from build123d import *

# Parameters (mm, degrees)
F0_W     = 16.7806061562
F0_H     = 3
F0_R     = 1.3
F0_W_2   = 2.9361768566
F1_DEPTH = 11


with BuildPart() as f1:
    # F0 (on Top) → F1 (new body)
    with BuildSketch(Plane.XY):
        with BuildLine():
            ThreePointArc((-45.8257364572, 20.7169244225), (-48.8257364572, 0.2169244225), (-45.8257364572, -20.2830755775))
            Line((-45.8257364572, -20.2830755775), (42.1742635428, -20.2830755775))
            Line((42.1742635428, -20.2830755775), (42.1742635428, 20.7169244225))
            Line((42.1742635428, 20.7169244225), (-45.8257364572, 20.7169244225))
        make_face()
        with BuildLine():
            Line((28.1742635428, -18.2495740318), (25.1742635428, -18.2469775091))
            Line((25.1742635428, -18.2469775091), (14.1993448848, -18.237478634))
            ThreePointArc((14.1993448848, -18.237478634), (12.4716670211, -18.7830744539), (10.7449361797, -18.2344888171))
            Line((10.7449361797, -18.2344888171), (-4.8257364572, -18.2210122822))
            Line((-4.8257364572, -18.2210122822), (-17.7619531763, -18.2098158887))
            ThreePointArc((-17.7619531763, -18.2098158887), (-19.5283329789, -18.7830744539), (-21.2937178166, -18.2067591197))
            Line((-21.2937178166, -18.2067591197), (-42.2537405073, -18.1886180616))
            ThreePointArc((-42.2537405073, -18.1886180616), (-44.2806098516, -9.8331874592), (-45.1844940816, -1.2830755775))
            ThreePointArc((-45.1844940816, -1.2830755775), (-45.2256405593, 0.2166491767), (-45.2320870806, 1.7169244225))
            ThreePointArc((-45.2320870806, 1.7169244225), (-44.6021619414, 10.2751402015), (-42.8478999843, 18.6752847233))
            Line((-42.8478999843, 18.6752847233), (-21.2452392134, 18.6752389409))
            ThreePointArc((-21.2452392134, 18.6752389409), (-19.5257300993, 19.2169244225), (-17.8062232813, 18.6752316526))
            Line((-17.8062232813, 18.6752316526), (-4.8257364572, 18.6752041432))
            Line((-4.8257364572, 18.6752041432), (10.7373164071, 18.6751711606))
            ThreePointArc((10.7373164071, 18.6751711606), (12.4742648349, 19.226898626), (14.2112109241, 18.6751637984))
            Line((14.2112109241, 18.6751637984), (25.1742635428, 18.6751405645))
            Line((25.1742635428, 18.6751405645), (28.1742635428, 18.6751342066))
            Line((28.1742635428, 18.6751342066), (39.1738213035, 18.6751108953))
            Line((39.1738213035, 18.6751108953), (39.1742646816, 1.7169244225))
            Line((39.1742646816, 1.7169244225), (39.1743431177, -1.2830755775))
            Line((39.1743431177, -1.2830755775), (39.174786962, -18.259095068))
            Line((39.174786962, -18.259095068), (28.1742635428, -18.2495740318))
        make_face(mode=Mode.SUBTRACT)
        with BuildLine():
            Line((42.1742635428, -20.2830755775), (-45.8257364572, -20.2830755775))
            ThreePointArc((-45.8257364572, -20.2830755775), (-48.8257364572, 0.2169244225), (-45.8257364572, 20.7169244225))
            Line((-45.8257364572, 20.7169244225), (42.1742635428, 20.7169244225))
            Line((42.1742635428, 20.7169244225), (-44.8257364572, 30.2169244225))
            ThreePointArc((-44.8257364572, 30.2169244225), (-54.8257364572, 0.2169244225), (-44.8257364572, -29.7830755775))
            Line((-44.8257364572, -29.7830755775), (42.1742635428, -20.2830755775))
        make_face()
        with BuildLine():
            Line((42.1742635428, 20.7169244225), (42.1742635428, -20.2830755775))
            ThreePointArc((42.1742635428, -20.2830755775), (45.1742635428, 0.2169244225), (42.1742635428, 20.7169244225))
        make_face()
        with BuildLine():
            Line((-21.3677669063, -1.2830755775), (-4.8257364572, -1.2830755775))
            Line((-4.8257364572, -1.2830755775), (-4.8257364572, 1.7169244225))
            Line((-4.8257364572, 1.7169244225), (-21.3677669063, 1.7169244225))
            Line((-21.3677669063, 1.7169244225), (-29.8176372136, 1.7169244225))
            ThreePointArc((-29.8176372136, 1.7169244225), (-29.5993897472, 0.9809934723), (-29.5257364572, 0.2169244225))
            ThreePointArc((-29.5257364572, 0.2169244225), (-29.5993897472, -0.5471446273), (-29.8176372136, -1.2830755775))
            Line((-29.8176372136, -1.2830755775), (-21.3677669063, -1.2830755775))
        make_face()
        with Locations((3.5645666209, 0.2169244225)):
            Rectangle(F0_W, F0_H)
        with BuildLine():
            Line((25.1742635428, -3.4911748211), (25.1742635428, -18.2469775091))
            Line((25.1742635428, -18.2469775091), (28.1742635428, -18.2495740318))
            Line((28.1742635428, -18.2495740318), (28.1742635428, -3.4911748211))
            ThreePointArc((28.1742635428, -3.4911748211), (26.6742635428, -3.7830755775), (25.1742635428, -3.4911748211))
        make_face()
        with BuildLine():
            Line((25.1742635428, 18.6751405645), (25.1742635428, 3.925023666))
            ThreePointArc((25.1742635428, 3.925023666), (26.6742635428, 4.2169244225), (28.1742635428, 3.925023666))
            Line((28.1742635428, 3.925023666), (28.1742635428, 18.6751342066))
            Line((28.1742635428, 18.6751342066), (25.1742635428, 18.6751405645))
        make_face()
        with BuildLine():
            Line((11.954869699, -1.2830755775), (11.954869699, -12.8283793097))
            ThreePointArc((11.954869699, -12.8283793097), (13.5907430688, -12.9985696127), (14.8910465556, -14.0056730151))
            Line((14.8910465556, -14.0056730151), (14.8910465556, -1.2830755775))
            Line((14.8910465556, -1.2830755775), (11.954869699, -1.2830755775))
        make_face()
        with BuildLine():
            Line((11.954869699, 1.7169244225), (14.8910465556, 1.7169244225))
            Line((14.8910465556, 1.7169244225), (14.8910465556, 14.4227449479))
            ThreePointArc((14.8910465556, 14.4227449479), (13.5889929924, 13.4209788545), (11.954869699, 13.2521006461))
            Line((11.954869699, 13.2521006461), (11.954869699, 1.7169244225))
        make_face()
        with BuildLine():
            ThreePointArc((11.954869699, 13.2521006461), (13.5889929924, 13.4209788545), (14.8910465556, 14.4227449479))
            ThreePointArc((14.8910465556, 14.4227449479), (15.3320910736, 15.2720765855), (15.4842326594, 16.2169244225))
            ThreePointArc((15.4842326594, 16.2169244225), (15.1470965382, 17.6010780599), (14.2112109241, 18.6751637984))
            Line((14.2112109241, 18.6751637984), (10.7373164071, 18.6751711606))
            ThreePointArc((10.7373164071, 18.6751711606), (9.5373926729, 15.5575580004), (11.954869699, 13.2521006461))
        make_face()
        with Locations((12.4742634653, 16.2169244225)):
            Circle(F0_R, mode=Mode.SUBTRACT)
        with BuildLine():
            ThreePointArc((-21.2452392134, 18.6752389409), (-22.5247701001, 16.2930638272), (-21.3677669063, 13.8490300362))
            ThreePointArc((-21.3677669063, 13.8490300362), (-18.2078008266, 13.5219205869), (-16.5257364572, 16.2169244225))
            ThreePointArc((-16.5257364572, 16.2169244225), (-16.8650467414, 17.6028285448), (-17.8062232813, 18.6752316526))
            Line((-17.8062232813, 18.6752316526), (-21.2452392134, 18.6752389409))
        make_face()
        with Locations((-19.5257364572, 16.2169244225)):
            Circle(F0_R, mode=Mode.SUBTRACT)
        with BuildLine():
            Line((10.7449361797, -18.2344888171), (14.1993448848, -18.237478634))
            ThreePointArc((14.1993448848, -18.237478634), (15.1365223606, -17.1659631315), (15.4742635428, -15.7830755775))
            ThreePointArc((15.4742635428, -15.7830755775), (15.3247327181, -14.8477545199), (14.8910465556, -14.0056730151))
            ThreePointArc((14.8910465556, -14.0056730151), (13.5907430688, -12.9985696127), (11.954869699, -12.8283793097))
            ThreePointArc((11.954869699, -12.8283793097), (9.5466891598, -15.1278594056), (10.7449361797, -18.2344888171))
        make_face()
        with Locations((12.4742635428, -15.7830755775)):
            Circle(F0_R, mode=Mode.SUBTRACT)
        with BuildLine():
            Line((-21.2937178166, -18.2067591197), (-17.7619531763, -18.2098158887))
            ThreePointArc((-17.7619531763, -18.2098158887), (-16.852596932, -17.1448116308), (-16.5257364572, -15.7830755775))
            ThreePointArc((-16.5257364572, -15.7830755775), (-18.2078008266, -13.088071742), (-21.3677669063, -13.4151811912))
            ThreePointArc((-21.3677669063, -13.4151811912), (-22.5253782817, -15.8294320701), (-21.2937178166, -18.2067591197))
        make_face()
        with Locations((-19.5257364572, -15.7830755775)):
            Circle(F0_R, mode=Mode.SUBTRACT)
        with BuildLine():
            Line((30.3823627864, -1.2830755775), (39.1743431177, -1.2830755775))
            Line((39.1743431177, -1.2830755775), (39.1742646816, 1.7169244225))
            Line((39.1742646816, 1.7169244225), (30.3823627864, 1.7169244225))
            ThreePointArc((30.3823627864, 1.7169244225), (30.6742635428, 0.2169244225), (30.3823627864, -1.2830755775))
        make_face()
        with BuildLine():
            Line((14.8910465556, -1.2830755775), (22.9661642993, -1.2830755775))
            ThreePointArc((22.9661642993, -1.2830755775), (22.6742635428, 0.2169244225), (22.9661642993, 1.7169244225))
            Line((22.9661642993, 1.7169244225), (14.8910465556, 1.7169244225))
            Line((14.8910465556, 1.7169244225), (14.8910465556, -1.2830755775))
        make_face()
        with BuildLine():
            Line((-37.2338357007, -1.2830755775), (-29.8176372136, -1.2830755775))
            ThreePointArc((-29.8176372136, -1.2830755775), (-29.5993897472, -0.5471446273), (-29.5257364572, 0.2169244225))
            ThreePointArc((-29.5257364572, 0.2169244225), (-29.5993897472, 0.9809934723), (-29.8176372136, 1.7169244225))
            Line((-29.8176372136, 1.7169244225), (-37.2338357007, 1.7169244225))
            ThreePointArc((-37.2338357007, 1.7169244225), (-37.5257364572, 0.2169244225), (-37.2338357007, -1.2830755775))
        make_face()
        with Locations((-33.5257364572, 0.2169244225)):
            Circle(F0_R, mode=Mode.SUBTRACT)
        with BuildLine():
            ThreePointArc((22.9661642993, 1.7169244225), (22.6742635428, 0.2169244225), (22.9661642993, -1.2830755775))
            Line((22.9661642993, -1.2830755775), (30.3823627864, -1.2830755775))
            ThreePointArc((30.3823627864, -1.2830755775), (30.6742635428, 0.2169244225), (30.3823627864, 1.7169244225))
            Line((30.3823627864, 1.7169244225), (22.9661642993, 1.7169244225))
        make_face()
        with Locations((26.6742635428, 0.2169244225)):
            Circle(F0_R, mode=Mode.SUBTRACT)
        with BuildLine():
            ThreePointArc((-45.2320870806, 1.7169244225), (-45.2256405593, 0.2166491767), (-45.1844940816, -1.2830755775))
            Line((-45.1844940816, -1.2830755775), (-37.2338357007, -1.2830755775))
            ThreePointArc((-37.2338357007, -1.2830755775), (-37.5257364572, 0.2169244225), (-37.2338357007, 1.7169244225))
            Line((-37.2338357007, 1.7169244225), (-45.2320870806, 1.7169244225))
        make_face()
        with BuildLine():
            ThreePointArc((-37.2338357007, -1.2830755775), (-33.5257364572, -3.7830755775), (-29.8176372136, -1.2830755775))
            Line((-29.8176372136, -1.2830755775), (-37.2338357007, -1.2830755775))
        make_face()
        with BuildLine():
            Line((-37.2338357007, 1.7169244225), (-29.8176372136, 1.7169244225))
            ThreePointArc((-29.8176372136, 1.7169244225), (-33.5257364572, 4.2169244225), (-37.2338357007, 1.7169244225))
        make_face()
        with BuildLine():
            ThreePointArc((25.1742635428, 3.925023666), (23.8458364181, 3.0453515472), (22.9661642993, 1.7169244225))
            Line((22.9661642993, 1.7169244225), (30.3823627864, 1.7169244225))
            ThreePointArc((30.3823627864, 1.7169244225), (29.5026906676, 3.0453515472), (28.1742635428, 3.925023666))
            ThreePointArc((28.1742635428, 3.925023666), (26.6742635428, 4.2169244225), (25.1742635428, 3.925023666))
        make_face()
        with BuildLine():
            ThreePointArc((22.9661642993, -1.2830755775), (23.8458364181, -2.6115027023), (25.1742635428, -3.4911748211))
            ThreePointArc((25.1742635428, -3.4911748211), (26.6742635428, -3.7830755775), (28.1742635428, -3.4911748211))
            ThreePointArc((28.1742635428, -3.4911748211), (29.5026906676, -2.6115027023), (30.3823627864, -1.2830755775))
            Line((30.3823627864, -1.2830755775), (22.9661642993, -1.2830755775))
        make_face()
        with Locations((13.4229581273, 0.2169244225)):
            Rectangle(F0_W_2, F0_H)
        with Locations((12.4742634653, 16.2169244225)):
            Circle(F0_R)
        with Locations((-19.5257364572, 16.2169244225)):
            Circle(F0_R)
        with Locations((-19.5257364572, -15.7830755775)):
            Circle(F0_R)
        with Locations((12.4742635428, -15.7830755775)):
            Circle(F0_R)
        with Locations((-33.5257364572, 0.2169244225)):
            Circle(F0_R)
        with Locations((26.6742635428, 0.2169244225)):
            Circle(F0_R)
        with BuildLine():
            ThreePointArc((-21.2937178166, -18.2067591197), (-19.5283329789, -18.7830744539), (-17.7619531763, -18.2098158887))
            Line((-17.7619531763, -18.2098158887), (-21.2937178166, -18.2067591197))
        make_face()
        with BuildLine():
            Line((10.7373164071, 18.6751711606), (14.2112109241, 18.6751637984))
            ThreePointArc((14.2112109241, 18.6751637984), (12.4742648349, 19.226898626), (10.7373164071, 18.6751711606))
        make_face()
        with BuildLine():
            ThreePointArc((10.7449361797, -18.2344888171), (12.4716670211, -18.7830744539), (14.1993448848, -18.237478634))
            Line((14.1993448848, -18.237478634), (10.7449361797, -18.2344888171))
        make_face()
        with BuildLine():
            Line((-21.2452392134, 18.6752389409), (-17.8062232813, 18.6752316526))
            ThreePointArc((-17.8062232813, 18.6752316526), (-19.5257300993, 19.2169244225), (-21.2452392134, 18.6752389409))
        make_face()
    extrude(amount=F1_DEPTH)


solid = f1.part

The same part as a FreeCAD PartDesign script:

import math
import FreeCAD as App
import Part
import Sketcher
Q = App.Units.Quantity

doc = App.newDocument("Part")
body = doc.addObject("PartDesign::Body", "Body")

# Sketch on XY plane
sketch1 = body.newObject("Sketcher::SketchObject", "Sketch")
sketch1.AttachmentSupport = (doc.getObject("XY_Plane"), [""])
sketch1.MapMode = "FlatFace"
sketch1.addGeometry(Part.LineSegment(App.Vector(42.174264, 20.716924, 0), App.Vector(-44.825736, 30.216924, 0)), False)
sketch1.addGeometry(Part.ArcOfCircle(Part.Circle(App.Vector(-4.825736, 0.216924, 0), App.Vector(0, 0, 1), 50), math.radians(143.130102), math.radians(216.869898)), False)
sketch1.addGeometry(Part.LineSegment(App.Vector(-44.825736, -29.783076, 0), App.Vector(42.174264, -20.283076, 0)), False)
sketch1.addGeometry(Part.ArcOfCircle(Part.Circle(App.Vector(-26.367403, 0.216924, 0), App.Vector(0, 0, 1), 71.541667), math.radians(-16.651301), math.radians(16.651301)), False)
sketch1.addGeometry(Part.ArcOfCircle(Part.Circle(App.Vector(12.474264, -15.783076, 0), App.Vector(0, 0, 1), 3), math.radians(99.969929), math.radians(234.799289)), False)
sketch1.addGeometry(Part.LineSegment(App.Vector(10.744936, -18.234489, 0), App.Vector(-4.825736, -18.221012, 0)), False)
sketch1.addGeometry(Part.LineSegment(App.Vector(-4.825736, -18.221012, 0), App.Vector(-17.761953, -18.209816, 0)), False)
sketch1.addGeometry(Part.ArcOfCircle(Part.Circle(App.Vector(-19.525736, -15.783076, 0), App.Vector(0, 0, 1), 3), math.radians(-53.989907), math.radians(0)), False)
sketch1.addGeometry(Part.ArcOfCircle(Part.Circle(App.Vector(-19.525736, -15.783076, 0), App.Vector(0, 0, 1), 3), math.radians(0), math.radians(127.880031)), False)
sketch1.addGeometry(Part.ArcOfCircle(Part.Circle(App.Vector(-19.525736, -15.783076, 0), App.Vector(0, 0, 1), 3), math.radians(127.880031), math.radians(233.890727)), False)
sketch1.addGeometry(Part.LineSegment(App.Vector(-21.293718, -18.206759, 0), App.Vector(-42.253741, -18.188618, 0)), False)
sketch1.addGeometry(Part.ArcOfCircle(Part.Circle(App.Vector(19.624614, 1.245455, 0), App.Vector(0, 0, 1), 64.858415), math.radians(-177.765735), math.radians(-162.564113)), False)
sketch1.addGeometry(Part.LineSegment(App.Vector(-45.184494, -1.283076, 0), App.Vector(-37.233836, -1.283076, 0)), False)
sketch1.addGeometry(Part.ArcOfCircle(Part.Circle(App.Vector(-33.525736, 0.216924, 0), App.Vector(0, 0, 1), 4), math.radians(-157.975687), math.radians(-22.024313)), False)
sketch1.addGeometry(Part.LineSegment(App.Vector(-29.817637, -1.283076, 0), App.Vector(11.95487, -1.283076, 0)), False)
sketch1.addGeometry(Part.LineSegment(App.Vector(11.95487, -1.283076, 0), App.Vector(11.95487, -12.828379, 0)), False)
sketch1.addGeometry(Part.LineSegment(App.Vector(25.174264, -18.246978, 0), App.Vector(14.199345, -18.237479, 0)), False)
sketch1.addGeometry(Part.ArcOfCircle(Part.Circle(App.Vector(12.474264, -15.783076, 0), App.Vector(0, 0, 1), 3), math.radians(-54.898469), math.radians(0)), False)
sketch1.addGeometry(Part.ArcOfCircle(Part.Circle(App.Vector(12.474264, -15.783076, 0), App.Vector(0, 0, 1), 3), math.radians(0), math.radians(36.332307)), False)
sketch1.addGeometry(Part.LineSegment(App.Vector(14.891047, -14.005673, 0), App.Vector(14.891047, -1.283076, 0)), False)
sketch1.addGeometry(Part.LineSegment(App.Vector(14.891047, -1.283076, 0), App.Vector(22.966164, -1.283076, 0)), False)
sketch1.addGeometry(Part.ArcOfCircle(Part.Circle(App.Vector(26.674264, 0.216924, 0), App.Vector(0, 0, 1), 4), math.radians(-157.975687), math.radians(-112.024313)), False)
sketch1.addGeometry(Part.LineSegment(App.Vector(25.174264, -3.491175, 0), App.Vector(25.174264, -18.246978, 0)), False)
sketch1.addGeometry(Part.LineSegment(App.Vector(39.174787, -18.259095, 0), App.Vector(28.174264, -18.249574, 0)), False)
sketch1.addGeometry(Part.LineSegment(App.Vector(28.174264, -18.249574, 0), App.Vector(28.174264, -3.491175, 0)), False)
sketch1.addGeometry(Part.ArcOfCircle(Part.Circle(App.Vector(26.674264, 0.216924, 0), App.Vector(0, 0, 1), 4), math.radians(-67.975687), math.radians(-22.024313)), False)
sketch1.addGeometry(Part.LineSegment(App.Vector(30.382363, -1.283076, 0), App.Vector(39.174343, -1.283076, 0)), False)
sketch1.addGeometry(Part.LineSegment(App.Vector(39.174343, -1.283076, 0), App.Vector(39.174787, -18.259095, 0)), False)
sketch1.addGeometry(Part.LineSegment(App.Vector(-17.806223, 18.675232, 0), App.Vector(10.737316, 18.675171, 0)), False)
sketch1.addGeometry(Part.ArcOfCircle(Part.Circle(App.Vector(12.474258, 16.216924, 0), App.Vector(0, 0, 1), 3.009974), math.radians(125.244171), math.radians(260.063543)), False)
sketch1.addGeometry(Part.LineSegment(App.Vector(11.95487, 13.252101, 0), App.Vector(11.95487, 1.716924, 0)), False)
sketch1.addGeometry(Part.LineSegment(App.Vector(11.95487, 1.716924, 0), App.Vector(-29.817637, 1.716924, 0)), False)
sketch1.addGeometry(Part.ArcOfCircle(Part.Circle(App.Vector(-33.525736, 0.216924, 0), App.Vector(0, 0, 1), 4), math.radians(22.024313), math.radians(157.975687)), False)
sketch1.addGeometry(Part.LineSegment(App.Vector(-37.233836, 1.716924, 0), App.Vector(-45.232087, 1.716924, 0)), False)
sketch1.addGeometry(Part.ArcOfCircle(Part.Circle(App.Vector(19.624614, 1.245455, 0), App.Vector(0, 0, 1), 64.858415), math.radians(164.410899), math.radians(179.583501)), False)
sketch1.addGeometry(Part.LineSegment(App.Vector(-42.8479, 18.675285, 0), App.Vector(-21.245239, 18.675239, 0)), False)
sketch1.addGeometry(Part.ArcOfCircle(Part.Circle(App.Vector(-19.525736, 16.216924, 0), App.Vector(0, 0, 1), 3), math.radians(124.971408), math.radians(232.119969)), False)
sketch1.addGeometry(Part.ArcOfCircle(Part.Circle(App.Vector(-19.525736, 16.216924, 0), App.Vector(0, 0, 1), 3), math.radians(-127.880031), math.radians(0)), False)
sketch1.addGeometry(Part.ArcOfCircle(Part.Circle(App.Vector(-19.525736, 16.216924, 0), App.Vector(0, 0, 1), 3), math.radians(0), math.radians(55.028349)), False)
sketch1.addGeometry(Part.ArcOfCircle(Part.Circle(App.Vector(12.474258, 16.216924, 0), App.Vector(0, 0, 1), 3.009974), math.radians(0), math.radians(54.755586)), False)
sketch1.addGeometry(Part.LineSegment(App.Vector(14.211211, 18.675164, 0), App.Vector(25.174264, 18.675141, 0)), False)
sketch1.addGeometry(Part.LineSegment(App.Vector(25.174264, 18.675141, 0), App.Vector(25.174264, 3.925024, 0)), False)
sketch1.addGeometry(Part.ArcOfCircle(Part.Circle(App.Vector(26.674264, 0.216924, 0), App.Vector(0, 0, 1), 4), math.radians(112.024313), math.radians(157.975687)), False)
sketch1.addGeometry(Part.LineSegment(App.Vector(22.966164, 1.716924, 0), App.Vector(14.891047, 1.716924, 0)), False)
sketch1.addGeometry(Part.LineSegment(App.Vector(14.891047, 1.716924, 0), App.Vector(14.891047, 14.422745, 0)), False)
sketch1.addGeometry(Part.ArcOfCircle(Part.Circle(App.Vector(12.474258, 16.216924, 0), App.Vector(0, 0, 1), 3.009974), math.radians(-36.58952), math.radians(0)), False)
sketch1.addGeometry(Part.LineSegment(App.Vector(28.174264, 3.925024, 0), App.Vector(28.174264, 18.675134, 0)), False)
sketch1.addGeometry(Part.LineSegment(App.Vector(28.174264, 18.675134, 0), App.Vector(39.173821, 18.675111, 0)), False)
sketch1.addGeometry(Part.LineSegment(App.Vector(39.173821, 18.675111, 0), App.Vector(39.174265, 1.716924, 0)), False)
sketch1.addGeometry(Part.LineSegment(App.Vector(39.174265, 1.716924, 0), App.Vector(30.382363, 1.716924, 0)), False)
sketch1.addGeometry(Part.ArcOfCircle(Part.Circle(App.Vector(26.674264, 0.216924, 0), App.Vector(0, 0, 1), 4), math.radians(22.024313), math.radians(67.975687)), False)
sketch1.addConstraint(Sketcher.Constraint("Coincident", 0, 2, 1, 1))
sketch1.addConstraint(Sketcher.Constraint("Coincident", 1, 2, 2, 1))
sketch1.addConstraint(Sketcher.Constraint("Coincident", 2, 2, 3, 1))
sketch1.addConstraint(Sketcher.Constraint("Coincident", 3, 2, 0, 1))
sketch1.addConstraint(Sketcher.Constraint("Coincident", 4, 2, 5, 1))
sketch1.addConstraint(Sketcher.Constraint("Coincident", 5, 2, 6, 1))
sketch1.addConstraint(Sketcher.Constraint("Coincident", 6, 2, 7, 1))
sketch1.addConstraint(Sketcher.Constraint("Tangent", 7, 2, 8, 1))
sketch1.addConstraint(Sketcher.Constraint("Tangent", 8, 2, 9, 1))
sketch1.addConstraint(Sketcher.Constraint("Coincident", 9, 2, 10, 1))
sketch1.addConstraint(Sketcher.Constraint("Coincident", 10, 2, 11, 2))
sketch1.addConstraint(Sketcher.Constraint("Coincident", 11, 1, 12, 1))
sketch1.addConstraint(Sketcher.Constraint("Coincident", 12, 2, 13, 1))
sketch1.addConstraint(Sketcher.Constraint("Coincident", 13, 2, 14, 1))
sketch1.addConstraint(Sketcher.Constraint("Coincident", 14, 2, 15, 1))
sketch1.addConstraint(Sketcher.Constraint("Coincident", 15, 2, 4, 1))
sketch1.addConstraint(Sketcher.Constraint("Coincident", 16, 2, 17, 1))
sketch1.addConstraint(Sketcher.Constraint("Tangent", 17, 2, 18, 1))
sketch1.addConstraint(Sketcher.Constraint("Coincident", 18, 2, 19, 1))
sketch1.addConstraint(Sketcher.Constraint("Coincident", 19, 2, 20, 1))
sketch1.addConstraint(Sketcher.Constraint("Coincident", 20, 2, 21, 1))
sketch1.addConstraint(Sketcher.Constraint("Coincident", 21, 2, 22, 1))
sketch1.addConstraint(Sketcher.Constraint("Coincident", 22, 2, 16, 1))
sketch1.addConstraint(Sketcher.Constraint("Coincident", 23, 2, 24, 1))
sketch1.addConstraint(Sketcher.Constraint("Coincident", 24, 2, 25, 1))
sketch1.addConstraint(Sketcher.Constraint("Coincident", 25, 2, 26, 1))
sketch1.addConstraint(Sketcher.Constraint("Coincident", 26, 2, 27, 1))
sketch1.addConstraint(Sketcher.Constraint("Coincident", 27, 2, 23, 1))
sketch1.addConstraint(Sketcher.Constraint("Coincident", 28, 2, 29, 1))
sketch1.addConstraint(Sketcher.Constraint("Coincident", 29, 2, 30, 1))
sketch1.addConstraint(Sketcher.Constraint("Coincident", 30, 2, 31, 1))
sketch1.addConstraint(Sketcher.Constraint("Coincident", 31, 2, 32, 1))
sketch1.addConstraint(Sketcher.Constraint("Coincident", 32, 2, 33, 1))
sketch1.addConstraint(Sketcher.Constraint("Coincident", 33, 2, 34, 2))
sketch1.addConstraint(Sketcher.Constraint("Coincident", 34, 1, 35, 1))
sketch1.addConstraint(Sketcher.Constraint("Coincident", 35, 2, 36, 1))
sketch1.addConstraint(Sketcher.Constraint("Tangent", 36, 2, 37, 1))
sketch1.addConstraint(Sketcher.Constraint("Tangent", 37, 2, 38, 1))
sketch1.addConstraint(Sketcher.Constraint("Coincident", 38, 2, 28, 1))
sketch1.addConstraint(Sketcher.Constraint("Coincident", 39, 2, 40, 1))
sketch1.addConstraint(Sketcher.Constraint("Coincident", 40, 2, 41, 1))
sketch1.addConstraint(Sketcher.Constraint("Coincident", 41, 2, 42, 1))
sketch1.addConstraint(Sketcher.Constraint("Coincident", 42, 2, 43, 1))
sketch1.addConstraint(Sketcher.Constraint("Coincident", 43, 2, 44, 1))
sketch1.addConstraint(Sketcher.Constraint("Coincident", 44, 2, 45, 1))
sketch1.addConstraint(Sketcher.Constraint("Tangent", 45, 2, 39, 1))
sketch1.addConstraint(Sketcher.Constraint("Coincident", 46, 2, 47, 1))
sketch1.addConstraint(Sketcher.Constraint("Coincident", 47, 2, 48, 1))
sketch1.addConstraint(Sketcher.Constraint("Coincident", 48, 2, 49, 1))
sketch1.addConstraint(Sketcher.Constraint("Coincident", 49, 2, 50, 1))
sketch1.addConstraint(Sketcher.Constraint("Coincident", 50, 2, 46, 1))
sketch1.addConstraint(Sketcher.Constraint("Horizontal", 12))
sketch1.addConstraint(Sketcher.Constraint("Horizontal", 14))
sketch1.addConstraint(Sketcher.Constraint("Vertical", 15))
sketch1.addConstraint(Sketcher.Constraint("Vertical", 19))
sketch1.addConstraint(Sketcher.Constraint("Horizontal", 20))
sketch1.addConstraint(Sketcher.Constraint("Vertical", 22))
sketch1.addConstraint(Sketcher.Constraint("Vertical", 24))
sketch1.addConstraint(Sketcher.Constraint("Horizontal", 26))
sketch1.addConstraint(Sketcher.Constraint("Vertical", 30))
sketch1.addConstraint(Sketcher.Constraint("Horizontal", 31))
sketch1.addConstraint(Sketcher.Constraint("Horizontal", 33))
sketch1.addConstraint(Sketcher.Constraint("Vertical", 41))
sketch1.addConstraint(Sketcher.Constraint("Horizontal", 43))
sketch1.addConstraint(Sketcher.Constraint("Vertical", 44))
sketch1.addConstraint(Sketcher.Constraint("Vertical", 46))
sketch1.addConstraint(Sketcher.Constraint("Horizontal", 49))
sketch1.addConstraint(Sketcher.Constraint("Coincident", 9, 3, 7, 3))
sketch1.addConstraint(Sketcher.Constraint("Coincident", 17, 3, 4, 3))
sketch1.addConstraint(Sketcher.Constraint("Coincident", 25, 3, 21, 3))
sketch1.addConstraint(Sketcher.Constraint("Coincident", 32, 3, 13, 3))
sketch1.addConstraint(Sketcher.Constraint("Coincident", 34, 3, 11, 3))
sketch1.addConstraint(Sketcher.Constraint("Coincident", 38, 3, 36, 3))
sketch1.addConstraint(Sketcher.Constraint("Coincident", 39, 3, 29, 3))
sketch1.addConstraint(Sketcher.Constraint("Coincident", 42, 3, 21, 3))
sketch1.addConstraint(Sketcher.Constraint("Coincident", 50, 3, 21, 3))
sketch1.addConstraint(Sketcher.Constraint("Equal", 4, 7))
sketch1.addConstraint(Sketcher.Constraint("Equal", 9, 17))
sketch1.addConstraint(Sketcher.Constraint("Equal", 17, 18))
sketch1.addConstraint(Sketcher.Constraint("Equal", 13, 21))
sketch1.addConstraint(Sketcher.Constraint("Equal", 21, 25))
sketch1.addConstraint(Sketcher.Constraint("Equal", 25, 32))
sketch1.addConstraint(Sketcher.Constraint("Equal", 11, 34))
sketch1.addConstraint(Sketcher.Constraint("Equal", 18, 36))
sketch1.addConstraint(Sketcher.Constraint("Equal", 29, 39))
sketch1.addConstraint(Sketcher.Constraint("Equal", 32, 42))
sketch1.addConstraint(Sketcher.Constraint("Equal", 39, 45))
sketch1.addConstraint(Sketcher.Constraint("Equal", 42, 50))
sketch1.addConstraint(Sketcher.Constraint("Parallel", 5, 6))
sketch1.addConstraint(Sketcher.Constraint("Parallel", 6, 10))
sketch1.addConstraint(Sketcher.Constraint("Parallel", 10, 16))
sketch1.addConstraint(Sketcher.Constraint("Parallel", 16, 23))
sketch1.addConstraint(Sketcher.Constraint("Parallel", 28, 35))
sketch1.addConstraint(Sketcher.Constraint("Parallel", 35, 40))
sketch1.addConstraint(Sketcher.Constraint("Parallel", 40, 47))
sketch1.addConstraint(Sketcher.Constraint("Parallel", 27, 48))
sketch1.addConstraint(Sketcher.Constraint("Horizontal", 1, 3, 3, 3))
sketch1.addConstraint(Sketcher.Constraint("Horizontal", 4, 3, 7, 3))
sketch1.addConstraint(Sketcher.Constraint("Horizontal", 3, 3, 13, 3))
sketch1.addConstraint(Sketcher.Constraint("Horizontal", 13, 3, 21, 3))
sketch1.addConstraint(Sketcher.Constraint("Horizontal", 29, 3, 36, 3))
sketch1.addConstraint(Sketcher.Constraint("Horizontal", 18, 3, 7, 2))
sketch1.addConstraint(Sketcher.Constraint("Horizontal", 12, 2, 13, 2))
sketch1.addConstraint(Sketcher.Constraint("Horizontal", 7, 2, 17, 2))
sketch1.addConstraint(Sketcher.Constraint("Horizontal", 14, 2, 19, 2))
sketch1.addConstraint(Sketcher.Constraint("Horizontal", 21, 2, 24, 2))
sketch1.addConstraint(Sketcher.Constraint("Horizontal", 20, 2, 25, 2))
sketch1.addConstraint(Sketcher.Constraint("Horizontal", 31, 2, 32, 2))
sketch1.addConstraint(Sketcher.Constraint("Horizontal", 45, 3, 37, 2))
sketch1.addConstraint(Sketcher.Constraint("Horizontal", 33, 2, 42, 2))
sketch1.addConstraint(Sketcher.Constraint("Horizontal", 37, 2, 45, 2))
sketch1.addConstraint(Sketcher.Constraint("Horizontal", 43, 2, 48, 2))
sketch1.addConstraint(Sketcher.Constraint("Horizontal", 41, 2, 50, 2))
sketch1.addConstraint(Sketcher.Constraint("Vertical", 9, 3, 36, 3))
sketch1.addConstraint(Sketcher.Constraint("Vertical", 0, 2, 1, 2))
sketch1.addConstraint(Sketcher.Constraint("Vertical", 2, 2, 3, 2))
sketch1.addConstraint(Sketcher.Constraint("Vertical", 1, 3, 5, 2))
sketch1.addConstraint(Sketcher.Constraint("Vertical", 15, 2, 29, 2))
sketch1.addConstraint(Sketcher.Constraint("Vertical", 13, 2, 31, 2))
sketch1.addConstraint(Sketcher.Constraint("Vertical", 8, 2, 36, 2))
sketch1.addConstraint(Sketcher.Constraint("Vertical", 22, 2, 40, 2))
sketch1.addConstraint(Sketcher.Constraint("Vertical", 19, 2, 43, 2))
sketch1.addConstraint(Sketcher.Constraint("Radius", 1, Q("50 mm")))
sketch1.addConstraint(Sketcher.Constraint("Radius", 4, Q("3 mm")))
sketch1.addConstraint(Sketcher.Constraint("Radius", 13, Q("4 mm")))
sketch1.addConstraint(Sketcher.Constraint("DistanceX", 49, 2, 49, 1, Q("8.791902 mm")))
sketch1.addConstraint(Sketcher.Constraint("DistanceY", 24, 1, 24, 2, Q("14.758399 mm")))
sketch1.addConstraint(Sketcher.Constraint("Radius", 3, Q("71.541667 mm")))
sketch1.addConstraint(Sketcher.Constraint("Radius", 11, Q("64.858415 mm")))
sketch1.addConstraint(Sketcher.Constraint("Radius", 29, Q("3.009974 mm")))
sketch1.addConstraint(Sketcher.Constraint("DistanceX", 12, 1, 12, 2, Q("7.950658 mm")))
sketch1.addConstraint(Sketcher.Constraint("DistanceX", 26, 1, 26, 2, Q("8.79198 mm")))
sketch1.addConstraint(Sketcher.Constraint("DistanceX", 33, 2, 33, 1, Q("7.998251 mm")))
sketch1.addConstraint(Sketcher.Constraint("DistanceY", 44, 1, 44, 2, Q("12.705821 mm")))
sketch1.addConstraint(Sketcher.Constraint("DistanceY", 46, 1, 46, 2, Q("14.750111 mm")))
sketch1.addConstraint(Sketcher.Constraint("DistanceY", -1, 1, 29, 2, Q("13.252101 mm")))
sketch1.addConstraint(Sketcher.Constraint("DistanceX", 34, 1, -1, 1, Q("42.8479 mm")))
sketch1.addConstraint(Sketcher.Constraint("Distance", 0, Q("87.517141 mm")))
sketch1.addConstraint(Sketcher.Constraint("Distance", 5, Q("15.570678 mm")))
sketch1.addConstraint(Sketcher.Constraint("Distance", 6, Q("12.936222 mm")))
sketch1.addConstraint(Sketcher.Constraint("Distance", 10, Q("20.960031 mm")))
sketch1.addConstraint(Sketcher.Constraint("Distance", 27, Q("16.976019 mm")))
sketch1.addConstraint(Sketcher.Constraint("Distance", 28, Q("28.54354 mm")))
sketch1.addConstraint(Sketcher.Constraint("Distance", 35, Q("21.602661 mm")))
sketch1.addConstraint(Sketcher.Constraint("DistanceX", 14, 1, 14, 2, Q("41.772507 mm")))
sketch1.addConstraint(Sketcher.Constraint("DistanceX", 20, 1, 20, 2, Q("8.075118 mm")))
sketch1.addConstraint(Sketcher.Constraint("DistanceY", 15, 2, 15, 1, Q("11.545304 mm")))
sketch1.addConstraint(Sketcher.Constraint("DistanceY", 19, 1, 19, 2, Q("12.722597 mm")))
sketch1.addConstraint(Sketcher.Constraint("DistanceY", 22, 2, 22, 1, Q("14.755803 mm")))
sketch1.addConstraint(Sketcher.Constraint("DistanceY", 30, 2, 30, 1, Q("11.535176 mm")))
sketch1.addConstraint(Sketcher.Constraint("DistanceY", 41, 2, 41, 1, Q("14.750117 mm")))
sketch1.addConstraint(Sketcher.Constraint("DistanceX", -1, 1, 29, 3, Q("12.474258 mm")))
sketch1.addConstraint(Sketcher.Constraint("DistanceY", 4, 2, -1, 1, Q("18.234489 mm")))
sketch1.addConstraint(Sketcher.Constraint("DistanceY", 8, 2, -1, 1, Q("13.415181 mm")))
sketch1.addConstraint(Sketcher.Constraint("DistanceY", 9, 2, -1, 1, Q("18.206759 mm")))
sketch1.addConstraint(Sketcher.Constraint("DistanceX", 10, 2, -1, 1, Q("42.253741 mm")))
sketch1.addConstraint(Sketcher.Constraint("DistanceY", 10, 2, -1, 1, Q("18.188618 mm")))
sketch1.addConstraint(Sketcher.Constraint("DistanceX", -1, 1, 47, 2, Q("39.173821 mm")))
sketch1.addConstraint(Sketcher.Constraint("DistanceX", 3, 3, -1, 1, Q("26.367403 mm")))
sketch1.addConstraint(Sketcher.Constraint("DistanceX", 0, 2, -1, 1, Q("44.825736 mm")))
pad1 = body.newObject("PartDesign::Pad", "Pad")
pad1.Profile = sketch1
pad1.Length = 11

doc.recompute()
